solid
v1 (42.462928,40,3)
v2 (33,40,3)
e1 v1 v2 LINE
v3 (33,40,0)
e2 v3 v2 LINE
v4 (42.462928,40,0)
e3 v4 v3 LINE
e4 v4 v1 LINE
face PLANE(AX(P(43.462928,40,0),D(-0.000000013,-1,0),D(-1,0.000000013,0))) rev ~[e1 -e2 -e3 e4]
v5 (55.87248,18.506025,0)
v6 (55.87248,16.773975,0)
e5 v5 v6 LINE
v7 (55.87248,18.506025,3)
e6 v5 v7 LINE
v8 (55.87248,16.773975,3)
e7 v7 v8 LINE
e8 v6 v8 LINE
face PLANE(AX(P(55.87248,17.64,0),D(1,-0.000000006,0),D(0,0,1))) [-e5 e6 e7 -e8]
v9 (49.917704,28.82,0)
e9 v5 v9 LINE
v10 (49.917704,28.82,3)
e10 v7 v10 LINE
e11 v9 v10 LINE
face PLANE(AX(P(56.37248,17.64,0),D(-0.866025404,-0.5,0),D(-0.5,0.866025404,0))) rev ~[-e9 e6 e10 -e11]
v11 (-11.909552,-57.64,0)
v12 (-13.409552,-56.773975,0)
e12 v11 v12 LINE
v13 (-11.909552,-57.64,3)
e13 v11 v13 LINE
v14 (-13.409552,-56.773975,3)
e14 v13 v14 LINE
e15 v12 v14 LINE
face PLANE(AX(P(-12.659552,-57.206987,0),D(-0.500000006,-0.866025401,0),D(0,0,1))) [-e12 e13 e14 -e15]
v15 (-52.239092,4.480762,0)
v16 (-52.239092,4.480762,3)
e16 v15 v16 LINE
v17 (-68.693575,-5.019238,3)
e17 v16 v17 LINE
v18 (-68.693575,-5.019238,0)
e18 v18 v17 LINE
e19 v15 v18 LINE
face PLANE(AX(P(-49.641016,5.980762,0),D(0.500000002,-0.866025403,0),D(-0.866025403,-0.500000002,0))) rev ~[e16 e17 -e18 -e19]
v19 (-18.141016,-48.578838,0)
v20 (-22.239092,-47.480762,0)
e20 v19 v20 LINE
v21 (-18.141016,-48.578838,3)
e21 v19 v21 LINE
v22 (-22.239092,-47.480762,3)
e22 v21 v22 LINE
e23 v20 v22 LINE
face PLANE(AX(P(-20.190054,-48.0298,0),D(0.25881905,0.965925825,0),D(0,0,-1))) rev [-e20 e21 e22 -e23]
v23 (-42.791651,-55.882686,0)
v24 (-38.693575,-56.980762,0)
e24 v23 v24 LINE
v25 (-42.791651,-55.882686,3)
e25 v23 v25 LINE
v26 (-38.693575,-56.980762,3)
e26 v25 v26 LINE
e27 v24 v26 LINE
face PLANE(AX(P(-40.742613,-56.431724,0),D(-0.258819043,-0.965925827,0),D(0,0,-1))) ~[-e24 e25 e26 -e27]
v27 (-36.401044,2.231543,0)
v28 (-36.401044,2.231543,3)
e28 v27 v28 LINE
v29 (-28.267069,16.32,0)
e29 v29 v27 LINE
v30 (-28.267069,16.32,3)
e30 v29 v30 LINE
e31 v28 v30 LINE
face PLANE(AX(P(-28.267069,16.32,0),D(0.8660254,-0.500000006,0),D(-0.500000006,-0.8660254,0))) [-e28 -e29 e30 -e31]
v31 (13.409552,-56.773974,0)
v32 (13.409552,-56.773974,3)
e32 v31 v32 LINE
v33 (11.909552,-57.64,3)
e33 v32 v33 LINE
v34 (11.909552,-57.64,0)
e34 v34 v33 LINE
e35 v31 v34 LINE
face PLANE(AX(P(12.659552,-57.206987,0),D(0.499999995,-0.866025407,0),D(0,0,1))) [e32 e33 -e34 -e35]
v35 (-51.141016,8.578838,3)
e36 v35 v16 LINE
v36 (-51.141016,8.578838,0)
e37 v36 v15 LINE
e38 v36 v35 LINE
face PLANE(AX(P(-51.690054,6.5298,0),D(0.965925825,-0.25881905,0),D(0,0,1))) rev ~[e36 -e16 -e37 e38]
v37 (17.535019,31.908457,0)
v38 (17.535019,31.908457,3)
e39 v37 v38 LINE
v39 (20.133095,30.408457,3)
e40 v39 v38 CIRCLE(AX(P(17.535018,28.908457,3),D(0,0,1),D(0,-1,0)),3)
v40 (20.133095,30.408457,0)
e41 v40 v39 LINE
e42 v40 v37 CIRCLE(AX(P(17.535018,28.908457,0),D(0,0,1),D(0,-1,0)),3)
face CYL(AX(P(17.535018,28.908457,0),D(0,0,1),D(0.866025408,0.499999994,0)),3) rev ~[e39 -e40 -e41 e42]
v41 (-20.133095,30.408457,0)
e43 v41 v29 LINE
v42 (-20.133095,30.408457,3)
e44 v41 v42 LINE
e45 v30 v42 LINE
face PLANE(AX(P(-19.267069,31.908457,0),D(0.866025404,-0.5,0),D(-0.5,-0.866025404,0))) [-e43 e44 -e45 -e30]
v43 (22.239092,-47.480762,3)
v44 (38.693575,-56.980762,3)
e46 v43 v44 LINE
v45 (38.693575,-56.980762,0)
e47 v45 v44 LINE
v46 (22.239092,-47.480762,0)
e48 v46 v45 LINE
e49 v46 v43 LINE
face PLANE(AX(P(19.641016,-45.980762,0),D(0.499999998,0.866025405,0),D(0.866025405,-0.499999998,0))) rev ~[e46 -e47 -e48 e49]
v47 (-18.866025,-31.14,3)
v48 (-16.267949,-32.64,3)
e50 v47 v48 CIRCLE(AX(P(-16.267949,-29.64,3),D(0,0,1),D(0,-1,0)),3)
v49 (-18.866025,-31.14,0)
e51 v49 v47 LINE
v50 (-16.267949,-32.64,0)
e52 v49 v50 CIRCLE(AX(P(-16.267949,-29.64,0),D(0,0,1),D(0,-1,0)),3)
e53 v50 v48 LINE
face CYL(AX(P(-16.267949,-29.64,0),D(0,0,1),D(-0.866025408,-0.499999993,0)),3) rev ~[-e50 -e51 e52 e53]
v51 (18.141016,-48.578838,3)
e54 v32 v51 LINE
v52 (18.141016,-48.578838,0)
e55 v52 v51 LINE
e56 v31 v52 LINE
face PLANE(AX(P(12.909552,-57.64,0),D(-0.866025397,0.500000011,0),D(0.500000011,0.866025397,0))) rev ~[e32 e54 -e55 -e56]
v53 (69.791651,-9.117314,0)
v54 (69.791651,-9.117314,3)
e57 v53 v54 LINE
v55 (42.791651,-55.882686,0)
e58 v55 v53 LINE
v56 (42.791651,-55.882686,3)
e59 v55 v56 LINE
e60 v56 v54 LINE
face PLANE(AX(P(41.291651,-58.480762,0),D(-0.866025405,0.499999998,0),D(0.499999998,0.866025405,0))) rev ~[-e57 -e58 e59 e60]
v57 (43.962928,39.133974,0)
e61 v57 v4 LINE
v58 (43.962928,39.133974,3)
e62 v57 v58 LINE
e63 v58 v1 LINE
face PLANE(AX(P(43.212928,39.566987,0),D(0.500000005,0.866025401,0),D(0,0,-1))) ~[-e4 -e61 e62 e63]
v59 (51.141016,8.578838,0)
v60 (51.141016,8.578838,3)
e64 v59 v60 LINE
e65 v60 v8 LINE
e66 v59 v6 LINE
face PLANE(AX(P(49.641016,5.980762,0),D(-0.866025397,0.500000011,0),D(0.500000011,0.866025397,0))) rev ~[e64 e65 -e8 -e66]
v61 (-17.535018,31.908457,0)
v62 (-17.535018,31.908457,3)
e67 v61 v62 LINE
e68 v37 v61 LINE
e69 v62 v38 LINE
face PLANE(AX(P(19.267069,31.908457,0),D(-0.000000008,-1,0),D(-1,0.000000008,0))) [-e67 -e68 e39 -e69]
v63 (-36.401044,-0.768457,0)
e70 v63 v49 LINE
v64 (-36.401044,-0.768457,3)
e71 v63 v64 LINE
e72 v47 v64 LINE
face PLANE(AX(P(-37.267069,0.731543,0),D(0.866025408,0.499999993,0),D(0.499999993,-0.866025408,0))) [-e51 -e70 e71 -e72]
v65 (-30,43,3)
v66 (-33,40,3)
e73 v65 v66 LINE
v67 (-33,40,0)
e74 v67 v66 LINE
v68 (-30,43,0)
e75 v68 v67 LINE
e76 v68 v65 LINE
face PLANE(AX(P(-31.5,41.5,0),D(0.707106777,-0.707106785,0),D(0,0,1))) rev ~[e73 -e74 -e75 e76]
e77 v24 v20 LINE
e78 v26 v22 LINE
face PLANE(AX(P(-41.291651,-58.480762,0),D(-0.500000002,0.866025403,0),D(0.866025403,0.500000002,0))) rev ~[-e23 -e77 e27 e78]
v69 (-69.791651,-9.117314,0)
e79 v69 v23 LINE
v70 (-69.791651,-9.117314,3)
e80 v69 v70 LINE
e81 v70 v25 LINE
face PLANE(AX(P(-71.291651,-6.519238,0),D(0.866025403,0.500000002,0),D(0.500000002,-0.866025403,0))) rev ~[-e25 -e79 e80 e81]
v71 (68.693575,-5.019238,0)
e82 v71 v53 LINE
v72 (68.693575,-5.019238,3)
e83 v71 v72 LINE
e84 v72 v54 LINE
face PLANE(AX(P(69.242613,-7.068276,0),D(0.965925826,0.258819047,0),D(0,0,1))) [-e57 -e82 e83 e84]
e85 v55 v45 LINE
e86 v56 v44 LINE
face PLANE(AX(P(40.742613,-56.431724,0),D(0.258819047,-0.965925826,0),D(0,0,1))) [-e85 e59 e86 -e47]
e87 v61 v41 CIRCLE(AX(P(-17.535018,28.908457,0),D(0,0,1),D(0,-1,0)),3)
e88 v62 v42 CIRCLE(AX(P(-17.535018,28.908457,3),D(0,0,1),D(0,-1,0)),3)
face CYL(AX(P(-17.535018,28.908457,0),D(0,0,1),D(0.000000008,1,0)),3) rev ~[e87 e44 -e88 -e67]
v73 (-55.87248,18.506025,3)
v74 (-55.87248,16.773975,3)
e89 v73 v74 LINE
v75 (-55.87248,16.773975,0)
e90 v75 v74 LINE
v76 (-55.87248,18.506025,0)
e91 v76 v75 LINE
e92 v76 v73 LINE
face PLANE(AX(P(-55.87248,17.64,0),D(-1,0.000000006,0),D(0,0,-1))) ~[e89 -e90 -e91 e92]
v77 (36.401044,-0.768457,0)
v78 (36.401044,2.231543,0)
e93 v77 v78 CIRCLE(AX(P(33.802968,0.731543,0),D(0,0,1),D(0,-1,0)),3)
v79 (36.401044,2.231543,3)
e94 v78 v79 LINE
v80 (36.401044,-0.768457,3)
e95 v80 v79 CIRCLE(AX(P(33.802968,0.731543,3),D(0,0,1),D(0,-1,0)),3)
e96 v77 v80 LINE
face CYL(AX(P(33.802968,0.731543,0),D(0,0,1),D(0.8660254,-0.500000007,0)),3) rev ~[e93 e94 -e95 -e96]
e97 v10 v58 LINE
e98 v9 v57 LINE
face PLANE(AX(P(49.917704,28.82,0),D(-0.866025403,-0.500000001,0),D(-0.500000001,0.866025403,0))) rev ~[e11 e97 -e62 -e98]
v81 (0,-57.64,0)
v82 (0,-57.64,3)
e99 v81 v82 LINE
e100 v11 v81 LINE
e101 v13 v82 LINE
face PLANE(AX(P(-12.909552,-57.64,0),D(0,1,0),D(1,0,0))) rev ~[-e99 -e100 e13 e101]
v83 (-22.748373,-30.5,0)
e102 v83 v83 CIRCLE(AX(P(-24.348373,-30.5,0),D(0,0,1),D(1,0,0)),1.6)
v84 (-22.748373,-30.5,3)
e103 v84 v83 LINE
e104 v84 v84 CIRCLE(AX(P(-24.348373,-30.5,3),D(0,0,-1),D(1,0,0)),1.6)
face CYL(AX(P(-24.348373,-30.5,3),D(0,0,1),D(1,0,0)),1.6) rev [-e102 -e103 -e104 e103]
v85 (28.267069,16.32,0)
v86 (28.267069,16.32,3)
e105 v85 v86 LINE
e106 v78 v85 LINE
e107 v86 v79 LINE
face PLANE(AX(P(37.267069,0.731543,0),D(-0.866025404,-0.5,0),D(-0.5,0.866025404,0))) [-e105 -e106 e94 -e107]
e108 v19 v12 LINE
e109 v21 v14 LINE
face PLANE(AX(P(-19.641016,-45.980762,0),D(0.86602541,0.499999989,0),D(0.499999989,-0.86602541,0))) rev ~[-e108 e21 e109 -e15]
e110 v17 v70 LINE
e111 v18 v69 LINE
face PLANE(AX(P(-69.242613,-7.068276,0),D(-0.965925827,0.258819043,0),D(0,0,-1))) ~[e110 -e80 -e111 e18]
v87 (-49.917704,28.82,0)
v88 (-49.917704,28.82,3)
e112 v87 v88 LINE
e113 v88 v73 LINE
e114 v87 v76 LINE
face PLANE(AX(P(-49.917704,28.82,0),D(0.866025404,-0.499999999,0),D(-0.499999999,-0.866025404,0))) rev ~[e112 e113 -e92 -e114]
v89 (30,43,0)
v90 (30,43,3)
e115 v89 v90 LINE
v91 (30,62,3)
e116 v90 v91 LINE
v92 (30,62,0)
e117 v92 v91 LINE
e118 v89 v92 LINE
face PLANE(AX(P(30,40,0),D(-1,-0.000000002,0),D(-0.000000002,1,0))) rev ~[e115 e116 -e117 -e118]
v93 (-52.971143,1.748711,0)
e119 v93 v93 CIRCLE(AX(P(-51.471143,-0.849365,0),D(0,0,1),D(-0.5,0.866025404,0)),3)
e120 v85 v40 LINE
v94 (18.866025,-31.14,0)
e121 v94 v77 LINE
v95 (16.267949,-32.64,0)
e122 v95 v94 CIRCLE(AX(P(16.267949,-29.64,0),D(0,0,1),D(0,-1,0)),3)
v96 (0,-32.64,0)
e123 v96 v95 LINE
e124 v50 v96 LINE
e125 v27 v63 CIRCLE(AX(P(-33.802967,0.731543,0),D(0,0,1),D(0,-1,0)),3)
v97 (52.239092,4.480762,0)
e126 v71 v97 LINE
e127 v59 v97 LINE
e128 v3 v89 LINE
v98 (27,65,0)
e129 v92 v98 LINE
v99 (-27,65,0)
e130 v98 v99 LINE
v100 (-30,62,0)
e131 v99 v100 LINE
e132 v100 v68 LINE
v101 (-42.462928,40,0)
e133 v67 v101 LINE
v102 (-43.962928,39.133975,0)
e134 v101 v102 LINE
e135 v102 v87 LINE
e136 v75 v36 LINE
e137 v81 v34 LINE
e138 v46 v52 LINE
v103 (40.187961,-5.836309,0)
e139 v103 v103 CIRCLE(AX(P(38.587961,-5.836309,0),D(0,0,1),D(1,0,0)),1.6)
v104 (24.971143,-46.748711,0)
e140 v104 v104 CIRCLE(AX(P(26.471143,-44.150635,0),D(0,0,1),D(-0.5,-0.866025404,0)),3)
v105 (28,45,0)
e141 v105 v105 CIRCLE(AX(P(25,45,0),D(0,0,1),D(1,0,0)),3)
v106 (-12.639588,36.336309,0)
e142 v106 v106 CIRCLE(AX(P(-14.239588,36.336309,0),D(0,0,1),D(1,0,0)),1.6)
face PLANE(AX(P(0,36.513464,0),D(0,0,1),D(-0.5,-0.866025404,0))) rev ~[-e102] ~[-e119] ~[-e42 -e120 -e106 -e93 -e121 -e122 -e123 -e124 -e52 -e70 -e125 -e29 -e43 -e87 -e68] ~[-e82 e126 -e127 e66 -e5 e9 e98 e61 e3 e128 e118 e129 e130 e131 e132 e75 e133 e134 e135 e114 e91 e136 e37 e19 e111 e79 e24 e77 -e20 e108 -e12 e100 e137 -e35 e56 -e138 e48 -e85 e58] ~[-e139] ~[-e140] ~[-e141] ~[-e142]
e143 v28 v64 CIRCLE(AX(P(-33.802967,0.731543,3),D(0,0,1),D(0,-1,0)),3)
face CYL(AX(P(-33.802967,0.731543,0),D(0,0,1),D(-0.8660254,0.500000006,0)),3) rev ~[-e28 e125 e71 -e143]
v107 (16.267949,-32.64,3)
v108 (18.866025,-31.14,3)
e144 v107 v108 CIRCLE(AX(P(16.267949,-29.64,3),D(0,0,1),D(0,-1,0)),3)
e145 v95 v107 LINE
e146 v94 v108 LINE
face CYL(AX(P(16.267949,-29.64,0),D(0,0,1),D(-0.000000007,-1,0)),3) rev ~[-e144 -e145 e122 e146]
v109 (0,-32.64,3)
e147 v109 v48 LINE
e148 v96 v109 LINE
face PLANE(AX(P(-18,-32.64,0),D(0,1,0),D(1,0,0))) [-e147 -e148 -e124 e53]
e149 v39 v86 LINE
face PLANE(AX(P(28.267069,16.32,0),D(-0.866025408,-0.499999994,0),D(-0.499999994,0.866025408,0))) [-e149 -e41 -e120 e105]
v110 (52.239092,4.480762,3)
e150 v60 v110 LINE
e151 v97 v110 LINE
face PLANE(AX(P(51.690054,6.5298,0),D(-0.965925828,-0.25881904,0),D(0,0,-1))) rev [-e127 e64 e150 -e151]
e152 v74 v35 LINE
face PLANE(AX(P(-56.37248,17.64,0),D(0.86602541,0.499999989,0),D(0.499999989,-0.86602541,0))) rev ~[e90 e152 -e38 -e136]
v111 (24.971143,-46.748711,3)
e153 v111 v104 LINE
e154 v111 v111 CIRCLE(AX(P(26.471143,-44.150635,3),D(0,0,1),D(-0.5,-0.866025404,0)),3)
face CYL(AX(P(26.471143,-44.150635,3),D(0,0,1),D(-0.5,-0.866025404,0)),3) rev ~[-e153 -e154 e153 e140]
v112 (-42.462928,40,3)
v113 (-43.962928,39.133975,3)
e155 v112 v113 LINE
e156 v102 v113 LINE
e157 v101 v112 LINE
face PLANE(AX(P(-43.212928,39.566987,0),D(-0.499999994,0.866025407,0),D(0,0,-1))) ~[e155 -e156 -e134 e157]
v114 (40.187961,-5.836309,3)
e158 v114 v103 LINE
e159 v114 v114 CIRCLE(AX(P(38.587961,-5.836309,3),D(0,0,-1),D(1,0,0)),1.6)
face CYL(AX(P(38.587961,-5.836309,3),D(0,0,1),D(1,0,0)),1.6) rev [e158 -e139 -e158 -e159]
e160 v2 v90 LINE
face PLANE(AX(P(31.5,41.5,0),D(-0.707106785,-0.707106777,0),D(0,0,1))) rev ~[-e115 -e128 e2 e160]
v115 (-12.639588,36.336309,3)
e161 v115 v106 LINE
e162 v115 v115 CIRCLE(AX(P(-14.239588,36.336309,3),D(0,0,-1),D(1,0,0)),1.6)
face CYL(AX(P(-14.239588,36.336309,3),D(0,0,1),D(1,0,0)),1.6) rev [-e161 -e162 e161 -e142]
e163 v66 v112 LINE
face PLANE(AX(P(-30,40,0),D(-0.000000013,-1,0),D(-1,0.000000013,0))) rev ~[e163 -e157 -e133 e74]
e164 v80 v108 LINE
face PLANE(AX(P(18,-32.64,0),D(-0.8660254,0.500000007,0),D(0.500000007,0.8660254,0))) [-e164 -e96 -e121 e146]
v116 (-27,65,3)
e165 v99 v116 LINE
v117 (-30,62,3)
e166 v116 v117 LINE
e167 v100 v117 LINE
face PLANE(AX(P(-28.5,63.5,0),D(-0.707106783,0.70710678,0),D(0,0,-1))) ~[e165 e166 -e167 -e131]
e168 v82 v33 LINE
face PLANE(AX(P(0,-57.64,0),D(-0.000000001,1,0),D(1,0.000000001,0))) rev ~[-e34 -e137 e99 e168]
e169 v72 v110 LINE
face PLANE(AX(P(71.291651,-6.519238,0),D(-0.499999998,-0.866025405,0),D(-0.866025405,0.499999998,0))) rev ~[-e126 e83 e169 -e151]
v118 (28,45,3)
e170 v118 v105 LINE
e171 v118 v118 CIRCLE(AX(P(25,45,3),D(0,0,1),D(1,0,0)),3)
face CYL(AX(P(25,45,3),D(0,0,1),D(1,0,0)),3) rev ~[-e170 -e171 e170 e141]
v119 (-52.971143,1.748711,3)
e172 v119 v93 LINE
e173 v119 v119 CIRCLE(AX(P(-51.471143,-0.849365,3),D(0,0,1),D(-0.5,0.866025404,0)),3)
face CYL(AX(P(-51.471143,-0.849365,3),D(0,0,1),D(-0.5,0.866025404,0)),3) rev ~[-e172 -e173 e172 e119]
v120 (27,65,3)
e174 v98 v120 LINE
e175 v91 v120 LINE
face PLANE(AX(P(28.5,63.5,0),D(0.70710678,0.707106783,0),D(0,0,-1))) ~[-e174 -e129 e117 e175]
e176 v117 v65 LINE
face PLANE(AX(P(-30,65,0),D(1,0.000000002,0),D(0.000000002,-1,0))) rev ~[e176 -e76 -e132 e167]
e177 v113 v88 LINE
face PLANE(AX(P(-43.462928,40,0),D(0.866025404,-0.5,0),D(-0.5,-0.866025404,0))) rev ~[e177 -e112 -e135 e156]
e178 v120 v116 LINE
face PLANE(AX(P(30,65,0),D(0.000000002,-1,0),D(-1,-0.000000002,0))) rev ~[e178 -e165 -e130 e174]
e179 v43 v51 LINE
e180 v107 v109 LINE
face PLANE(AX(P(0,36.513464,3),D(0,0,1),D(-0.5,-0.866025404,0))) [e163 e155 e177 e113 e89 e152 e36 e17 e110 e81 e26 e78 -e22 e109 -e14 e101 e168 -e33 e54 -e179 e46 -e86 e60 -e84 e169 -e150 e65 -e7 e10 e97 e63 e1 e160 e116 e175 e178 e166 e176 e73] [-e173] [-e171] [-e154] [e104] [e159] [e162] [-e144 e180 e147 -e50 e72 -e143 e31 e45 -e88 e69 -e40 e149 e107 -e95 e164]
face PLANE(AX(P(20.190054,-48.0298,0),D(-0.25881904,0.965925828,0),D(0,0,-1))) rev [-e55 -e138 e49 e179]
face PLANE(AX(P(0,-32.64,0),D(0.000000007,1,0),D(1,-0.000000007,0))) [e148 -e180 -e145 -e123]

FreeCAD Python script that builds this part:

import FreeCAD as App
import Part
import Sketcher
Q = App.Units.Quantity


def edges_at(feature, points):
    """Names of the edges that pass closest to the given points."""
    edges = feature.Shape.Edges
    near = lambda p: min(range(len(edges)), key=lambda i: edges[i].distToShape(Part.Vertex(*p))[0])
    return sorted({f"Edge{near(p) + 1}" for p in points})


def add_polygon(sketch, points):
    """Adds a closed chain of lines whose ends are joined by coincident constraints."""
    first, n = sketch.GeometryCount, len(points)
    for a, b in zip(points, points[1:] + points[:1]):
        sketch.addGeometry(Part.LineSegment(App.Vector(*a, 0), App.Vector(*b, 0)), False)
    for i in range(n):
        sketch.addConstraint(Sketcher.Constraint("Coincident", first + i, 2, first + (i + 1) % n, 1))

doc = App.newDocument("Part")
params = doc.addObject("Spreadsheet::Sheet", "Params")
for row, (alias, value) in enumerate([
    ("sketch1_diameter", "3.2 mm"),
    ("sketch1_length", "25 mm"),
    ("sketch1_length2", "60 mm"),
    ("sketch1_height", "57.64 mm"),
    ("sketch1_length3", "57.64 mm"),
    ("pad1_length", "3 mm"),
    ("sketch2_width", "18 mm"),
    ("sketch2_length", "18 mm"),
    ("sketch2_height", "32.64 mm"),
    ("chamfer_size", "1 mm"),
    ("fillet_radius", "3 mm"),
    ("sketch3_diameter", "3.2 mm"),
    ("sketch4_diameter", "6 mm"),
    ("pocket3_length", "5 mm"),
    ("chamfer2_size", "3 mm"),
], start=1):
    params.set(f"A{row}", alias)
    params.set(f"B{row}", "=" + value)
    params.setAlias(f"B{row}", alias)

body = doc.addObject("PartDesign::Body", "Body")

sketch1 = body.newObject("Sketcher::SketchObject", "Sketch")
sketch1.AttachmentSupport = (doc.getObject("XY_Plane"), [""])
sketch1.MapMode = "FlatFace"
add_polygon(sketch1, [(0, 0), (-49.9, 28.8), (-56.4, 17.6), (-49.6, 6), (-71.3, -6.5), (-41.3, -58.5), (-19.6, -46), (-12.9, -57.6), (0, -57.6)])
sketch1.addGeometry(Part.Circle(App.Vector(-51.5, -0.8, 0), App.Vector(0, 0, 1), 1.6), False)
sketch1.addConstraint([
    Sketcher.Constraint("Horizontal", 7),
    Sketcher.Constraint("Vertical", 8),
    Sketcher.Constraint("Coincident", 8, 2, -1, 1),
    Sketcher.Constraint("Perpendicular", 0, 1),
    Sketcher.Constraint("Perpendicular", 2, 3),
    Sketcher.Constraint("Perpendicular", 3, 4),
    Sketcher.Constraint("Perpendicular", 4, 5),
    Sketcher.Constraint("Perpendicular", 5, 6),
    Sketcher.Constraint("Equal", 3, 5),
    Sketcher.Constraint("Equal", 2, 6),
    Sketcher.Constraint("Diameter", 9, 3.2),
    Sketcher.Constraint("Angle", 0, Q("150 deg")),
    Sketcher.Constraint("Angle", 2, Q("-60.000001 deg")),
    Sketcher.Constraint("Distance", 3, 25.0),
    Sketcher.Constraint("Distance", 4, 60.0),
    Sketcher.Constraint("DistanceY", 8, 1, 8, 2, 57.64),
    Sketcher.Constraint("Distance", 0, 57.64),
    Sketcher.Constraint("DistanceY", -1, 1, 1, 2, 17.64),
    Sketcher.Constraint("DistanceX", 9, 3, 0, 2, 1.553439),
    Sketcher.Constraint("DistanceY", 9, 3, -1, 1, 0.849365),
])
sketch1.setExpression("Constraints[19]", "Params.sketch1_diameter")
sketch1.setExpression("Constraints[22]", "Params.sketch1_length")
sketch1.setExpression("Constraints[23]", "Params.sketch1_length2")
sketch1.setExpression("Constraints[24]", "Params.sketch1_height")
sketch1.setExpression("Constraints[25]", "Params.sketch1_length3")
pad1 = body.newObject("PartDesign::Pad", "Pad")
pad1.Profile = sketch1
pad1.setExpression("Length", "Params.pad1_length")
doc.recompute()

polarpattern = body.newObject("PartDesign::PolarPattern", "PolarPattern")
polarpattern.Originals = [pad1]
polarpattern.Axis = (doc.getObject("Z_Axis"), [""])
polarpattern.Angle = 360
polarpattern.Occurrences = 3
body.Tip = polarpattern

sketch2 = body.newObject("Sketcher::SketchObject", "Sketch001")
sketch2.AttachmentSupport = (doc.getObject("XY_Plane"), [""])
sketch2.MapMode = "FlatFace"
add_polygon(sketch2, [(-28, 16), (-37, 1), (-18, -33), (0, -33), (0, 0)])
sketch2.addConstraint([
    Sketcher.Constraint("Horizontal", 2),
    Sketcher.Constraint("Vertical", 3),
    Sketcher.Constraint("Coincident", 3, 2, -1, 1),
    Sketcher.Constraint("Perpendicular", 0, 4),
    Sketcher.Constraint("DistanceX", 2, 1, 2, 2, 18.0),
    Sketcher.Constraint("Angle", 0, Q("-120 deg")),
    Sketcher.Constraint("Angle", 1, Q("-60 deg")),
    Sketcher.Constraint("Distance", 0, 18.0),
    Sketcher.Constraint("DistanceY", 3, 1, 3, 2, 32.64),
])
sketch2.setExpression("Constraints[9]", "Params.sketch2_width")
sketch2.setExpression("Constraints[12]", "Params.sketch2_length")
sketch2.setExpression("Constraints[13]", "Params.sketch2_height")
pocket1 = body.newObject("PartDesign::Pocket", "Pocket")
pocket1.Profile = sketch2
pocket1.Type = "ThroughAll"
pocket1.Reversed = True
doc.recompute()

polarpattern2 = body.newObject("PartDesign::PolarPattern", "PolarPattern001")
polarpattern2.Originals = [pocket1]
polarpattern2.Axis = (doc.getObject("Z_Axis"), [""])
polarpattern2.Angle = 360
polarpattern2.Occurrences = 3
body.Tip = polarpattern2
doc.recompute()

chamfer = body.newObject("PartDesign::Chamfer", "Chamfer")
chamfer.Base = (polarpattern2, edges_at(polarpattern2, [
    (-56.372, 17.64, 1.5),
    (-43.463, 40, 1.5),
    (43.463, 40, 1.5),
    (56.372, 17.64, 1.5),
    (12.91, -57.64, 1.5),
    (-12.91, -57.64, 1.5),
]))
chamfer.setExpression("Size", "Params.chamfer_size")
doc.recompute()

fillet = body.newObject("PartDesign::Fillet", "Fillet")
fillet.Base = (chamfer, edges_at(chamfer, [
    (-19.267, 31.908, 1.5),
    (18, -32.64, 1.5),
    (-18, -32.64, 1.5),
    (37.267, 0.732, 1.5),
    (19.267, 31.908, 1.5),
    (-37.267, 0.732, 1.5),
]))
fillet.setExpression("Radius", "Params.fillet_radius")

sketch3 = body.newObject("Sketcher::SketchObject", "Sketch002")
sketch3.AttachmentSupport = (doc.getObject("XY_Plane"), [""])
sketch3.MapMode = "FlatFace"
sketch3.AttachmentOffset = App.Placement(App.Vector(0, 0, 3), App.Rotation())
sketch3.addGeometry([
    Part.Circle(App.Vector(-24.3, -30.5, 0), App.Vector(0, 0, 1), 1.6),
    Part.Circle(App.Vector(38.6, -5.8, 0), App.Vector(0, 0, 1), 1.6),
    Part.Circle(App.Vector(-14.2, 36.3, 0), App.Vector(0, 0, 1), 1.6),
], False)
sketch3.addConstraint([
    Sketcher.Constraint("Equal", 0, 1),
    Sketcher.Constraint("Equal", 1, 2),
    Sketcher.Constraint("Diameter", 0, 3.2),
    Sketcher.Constraint("DistanceY", 0, 3, -1, 1, 30.5),
    Sketcher.Constraint("DistanceX", -1, 1, 1, 3, 38.587961),
    Sketcher.Constraint("DistanceY", 1, 3, -1, 1, 5.836309),
    Sketcher.Constraint("DistanceY", -1, 1, 2, 3, 36.336309),
    Sketcher.Constraint("DistanceX", 2, 3, 1, 3, 52.827549),
    Sketcher.Constraint("DistanceX", 0, 3, -1, 1, 24.348373),
])
sketch3.setExpression("Constraints[2]", "Params.sketch3_diameter")
pocket2 = body.newObject("PartDesign::Pocket", "Pocket001")
pocket2.Profile = sketch3
pocket2.Type = "ThroughAll"

sketch4 = body.newObject("Sketcher::SketchObject", "Sketch003")
sketch4.AttachmentSupport = (doc.getObject("XY_Plane"), [""])
sketch4.MapMode = "FlatFace"
sketch4.AttachmentOffset = App.Placement(App.Vector(0, 0, 3), App.Rotation())
sketch4.addGeometry(Part.Circle(App.Vector(25, 45, 0), App.Vector(0, 0, 1), 3), False)
sketch4.addConstraint([
    Sketcher.Constraint("Diameter", 0, 6.0),
    Sketcher.Constraint("DistanceX", -1, 1, 0, 3, 25.0),
    Sketcher.Constraint("DistanceY", -1, 1, 0, 3, 45.0),
])
sketch4.setExpression("Constraints[0]", "Params.sketch4_diameter")
pocket3 = body.newObject("PartDesign::Pocket", "Pocket002")
pocket3.Profile = sketch4
pocket3.setExpression("Length", "Params.pocket3_length")
doc.recompute()

polarpattern3 = body.newObject("PartDesign::PolarPattern", "PolarPattern002")
polarpattern3.Originals = [pocket3]
polarpattern3.Axis = (doc.getObject("Z_Axis"), [""])
polarpattern3.Angle = 360
polarpattern3.Occurrences = 3
body.Tip = polarpattern3
doc.recompute()

chamfer2 = body.newObject("PartDesign::Chamfer", "Chamfer001")
chamfer2.Base = (polarpattern3, edges_at(polarpattern3, [
    (-41.292, -58.481, 1.5),
    (-71.292, -6.519, 1.5),
    (-30, 65, 1.5),
    (41.292, -58.481, 1.5),
    (71.292, -6.519, 1.5),
    (30, 65, 1.5),
    (-19.641, -45.981, 1.5),
    (49.641, 5.981, 1.5),
    (-30, 40, 1.5),
    (30, 40, 1.5),
    (-49.641, 5.981, 1.5),
    (19.641, -45.981, 1.5),
]))
chamfer2.setExpression("Size", "Params.chamfer2_size")

doc.recompute()
